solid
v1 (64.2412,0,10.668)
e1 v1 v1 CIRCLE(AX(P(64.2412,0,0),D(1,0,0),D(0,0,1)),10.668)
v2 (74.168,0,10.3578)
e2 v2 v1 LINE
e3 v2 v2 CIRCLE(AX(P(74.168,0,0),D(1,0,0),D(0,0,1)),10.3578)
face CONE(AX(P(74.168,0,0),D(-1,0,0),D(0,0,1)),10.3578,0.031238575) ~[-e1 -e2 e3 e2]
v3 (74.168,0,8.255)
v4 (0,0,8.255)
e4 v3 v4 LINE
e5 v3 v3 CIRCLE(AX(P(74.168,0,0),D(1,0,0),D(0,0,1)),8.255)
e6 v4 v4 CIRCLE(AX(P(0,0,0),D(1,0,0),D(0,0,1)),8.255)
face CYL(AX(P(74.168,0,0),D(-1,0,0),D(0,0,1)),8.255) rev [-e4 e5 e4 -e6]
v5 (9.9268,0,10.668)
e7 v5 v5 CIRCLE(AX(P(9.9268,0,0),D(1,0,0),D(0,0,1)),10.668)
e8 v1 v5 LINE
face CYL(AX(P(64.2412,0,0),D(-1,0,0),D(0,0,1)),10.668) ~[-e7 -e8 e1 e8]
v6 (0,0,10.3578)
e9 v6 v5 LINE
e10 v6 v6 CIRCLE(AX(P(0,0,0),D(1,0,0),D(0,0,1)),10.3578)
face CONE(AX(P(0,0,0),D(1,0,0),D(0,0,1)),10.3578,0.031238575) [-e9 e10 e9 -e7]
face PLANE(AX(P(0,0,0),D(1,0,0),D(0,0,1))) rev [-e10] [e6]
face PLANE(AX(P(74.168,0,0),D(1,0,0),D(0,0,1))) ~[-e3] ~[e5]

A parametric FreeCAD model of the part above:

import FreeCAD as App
import Part
import Sketcher
Q = App.Units.Quantity


def add_polygon(sketch, points):
    """Adds a closed chain of lines whose ends are joined by coincident constraints."""
    first, n = sketch.GeometryCount, len(points)
    for a, b in zip(points, points[1:] + points[:1]):
        sketch.addGeometry(Part.LineSegment(App.Vector(*a, 0), App.Vector(*b, 0)), False)
    for i in range(n):
        sketch.addConstraint(Sketcher.Constraint("Coincident", first + i, 2, first + (i + 1) % n, 1))

doc = App.newDocument("Part")
body = doc.addObject("PartDesign::Body", "Body")

sketch1 = doc.addObject("Sketcher::SketchObject", "Sketch")
body.addObject(sketch1)
sketch1.AttachmentSupport = (doc.XZ_Plane, [""])
sketch1.MapMode = "FlatFace"
add_polygon(sketch1, [(74.2, 10.4), (74.2, 8.3), (0, 8.3), (0, 10.4), (9.9, 10.7), (64.2, 10.7)])
sketch1.addConstraint(Sketcher.Constraint("Vertical", 0))
sketch1.addConstraint(Sketcher.Constraint("Horizontal", 1))
sketch1.addConstraint(Sketcher.Constraint("Vertical", 2))
sketch1.addConstraint(Sketcher.Constraint("Horizontal", 4))
sketch1.addConstraint(Sketcher.Constraint("PointOnObject", 1, 2, -2))
sketch1.addConstraint(Sketcher.Constraint("Horizontal", 2, 2, 5, 2))
sketch1.addConstraint(Sketcher.Constraint("Equal", 3, 5))
sketch1.addConstraint(Sketcher.Constraint("DistanceX", 1, 2, 1, 1, Q("2.92 in")))
sketch1.addConstraint(Sketcher.Constraint("Angle", 3, Q("1.7898 deg")))
sketch1.addConstraint(Sketcher.Constraint("DistanceY", -1, 1, 3, 2, Q("0.42 in")))
sketch1.addConstraint(Sketcher.Constraint("Distance", 3, Q("0.391 in")))
sketch1.addConstraint(Sketcher.Constraint("DistanceY", -1, 1, 0, 2, Q("0.325 in")))
revolution = doc.addObject("PartDesign::Revolution", "Revolution")
body.addObject(revolution)
revolution.Profile = sketch1
revolution.ReferenceAxis = (sketch1, ["H_Axis"])
revolution.Angle = 360

doc.recompute()
